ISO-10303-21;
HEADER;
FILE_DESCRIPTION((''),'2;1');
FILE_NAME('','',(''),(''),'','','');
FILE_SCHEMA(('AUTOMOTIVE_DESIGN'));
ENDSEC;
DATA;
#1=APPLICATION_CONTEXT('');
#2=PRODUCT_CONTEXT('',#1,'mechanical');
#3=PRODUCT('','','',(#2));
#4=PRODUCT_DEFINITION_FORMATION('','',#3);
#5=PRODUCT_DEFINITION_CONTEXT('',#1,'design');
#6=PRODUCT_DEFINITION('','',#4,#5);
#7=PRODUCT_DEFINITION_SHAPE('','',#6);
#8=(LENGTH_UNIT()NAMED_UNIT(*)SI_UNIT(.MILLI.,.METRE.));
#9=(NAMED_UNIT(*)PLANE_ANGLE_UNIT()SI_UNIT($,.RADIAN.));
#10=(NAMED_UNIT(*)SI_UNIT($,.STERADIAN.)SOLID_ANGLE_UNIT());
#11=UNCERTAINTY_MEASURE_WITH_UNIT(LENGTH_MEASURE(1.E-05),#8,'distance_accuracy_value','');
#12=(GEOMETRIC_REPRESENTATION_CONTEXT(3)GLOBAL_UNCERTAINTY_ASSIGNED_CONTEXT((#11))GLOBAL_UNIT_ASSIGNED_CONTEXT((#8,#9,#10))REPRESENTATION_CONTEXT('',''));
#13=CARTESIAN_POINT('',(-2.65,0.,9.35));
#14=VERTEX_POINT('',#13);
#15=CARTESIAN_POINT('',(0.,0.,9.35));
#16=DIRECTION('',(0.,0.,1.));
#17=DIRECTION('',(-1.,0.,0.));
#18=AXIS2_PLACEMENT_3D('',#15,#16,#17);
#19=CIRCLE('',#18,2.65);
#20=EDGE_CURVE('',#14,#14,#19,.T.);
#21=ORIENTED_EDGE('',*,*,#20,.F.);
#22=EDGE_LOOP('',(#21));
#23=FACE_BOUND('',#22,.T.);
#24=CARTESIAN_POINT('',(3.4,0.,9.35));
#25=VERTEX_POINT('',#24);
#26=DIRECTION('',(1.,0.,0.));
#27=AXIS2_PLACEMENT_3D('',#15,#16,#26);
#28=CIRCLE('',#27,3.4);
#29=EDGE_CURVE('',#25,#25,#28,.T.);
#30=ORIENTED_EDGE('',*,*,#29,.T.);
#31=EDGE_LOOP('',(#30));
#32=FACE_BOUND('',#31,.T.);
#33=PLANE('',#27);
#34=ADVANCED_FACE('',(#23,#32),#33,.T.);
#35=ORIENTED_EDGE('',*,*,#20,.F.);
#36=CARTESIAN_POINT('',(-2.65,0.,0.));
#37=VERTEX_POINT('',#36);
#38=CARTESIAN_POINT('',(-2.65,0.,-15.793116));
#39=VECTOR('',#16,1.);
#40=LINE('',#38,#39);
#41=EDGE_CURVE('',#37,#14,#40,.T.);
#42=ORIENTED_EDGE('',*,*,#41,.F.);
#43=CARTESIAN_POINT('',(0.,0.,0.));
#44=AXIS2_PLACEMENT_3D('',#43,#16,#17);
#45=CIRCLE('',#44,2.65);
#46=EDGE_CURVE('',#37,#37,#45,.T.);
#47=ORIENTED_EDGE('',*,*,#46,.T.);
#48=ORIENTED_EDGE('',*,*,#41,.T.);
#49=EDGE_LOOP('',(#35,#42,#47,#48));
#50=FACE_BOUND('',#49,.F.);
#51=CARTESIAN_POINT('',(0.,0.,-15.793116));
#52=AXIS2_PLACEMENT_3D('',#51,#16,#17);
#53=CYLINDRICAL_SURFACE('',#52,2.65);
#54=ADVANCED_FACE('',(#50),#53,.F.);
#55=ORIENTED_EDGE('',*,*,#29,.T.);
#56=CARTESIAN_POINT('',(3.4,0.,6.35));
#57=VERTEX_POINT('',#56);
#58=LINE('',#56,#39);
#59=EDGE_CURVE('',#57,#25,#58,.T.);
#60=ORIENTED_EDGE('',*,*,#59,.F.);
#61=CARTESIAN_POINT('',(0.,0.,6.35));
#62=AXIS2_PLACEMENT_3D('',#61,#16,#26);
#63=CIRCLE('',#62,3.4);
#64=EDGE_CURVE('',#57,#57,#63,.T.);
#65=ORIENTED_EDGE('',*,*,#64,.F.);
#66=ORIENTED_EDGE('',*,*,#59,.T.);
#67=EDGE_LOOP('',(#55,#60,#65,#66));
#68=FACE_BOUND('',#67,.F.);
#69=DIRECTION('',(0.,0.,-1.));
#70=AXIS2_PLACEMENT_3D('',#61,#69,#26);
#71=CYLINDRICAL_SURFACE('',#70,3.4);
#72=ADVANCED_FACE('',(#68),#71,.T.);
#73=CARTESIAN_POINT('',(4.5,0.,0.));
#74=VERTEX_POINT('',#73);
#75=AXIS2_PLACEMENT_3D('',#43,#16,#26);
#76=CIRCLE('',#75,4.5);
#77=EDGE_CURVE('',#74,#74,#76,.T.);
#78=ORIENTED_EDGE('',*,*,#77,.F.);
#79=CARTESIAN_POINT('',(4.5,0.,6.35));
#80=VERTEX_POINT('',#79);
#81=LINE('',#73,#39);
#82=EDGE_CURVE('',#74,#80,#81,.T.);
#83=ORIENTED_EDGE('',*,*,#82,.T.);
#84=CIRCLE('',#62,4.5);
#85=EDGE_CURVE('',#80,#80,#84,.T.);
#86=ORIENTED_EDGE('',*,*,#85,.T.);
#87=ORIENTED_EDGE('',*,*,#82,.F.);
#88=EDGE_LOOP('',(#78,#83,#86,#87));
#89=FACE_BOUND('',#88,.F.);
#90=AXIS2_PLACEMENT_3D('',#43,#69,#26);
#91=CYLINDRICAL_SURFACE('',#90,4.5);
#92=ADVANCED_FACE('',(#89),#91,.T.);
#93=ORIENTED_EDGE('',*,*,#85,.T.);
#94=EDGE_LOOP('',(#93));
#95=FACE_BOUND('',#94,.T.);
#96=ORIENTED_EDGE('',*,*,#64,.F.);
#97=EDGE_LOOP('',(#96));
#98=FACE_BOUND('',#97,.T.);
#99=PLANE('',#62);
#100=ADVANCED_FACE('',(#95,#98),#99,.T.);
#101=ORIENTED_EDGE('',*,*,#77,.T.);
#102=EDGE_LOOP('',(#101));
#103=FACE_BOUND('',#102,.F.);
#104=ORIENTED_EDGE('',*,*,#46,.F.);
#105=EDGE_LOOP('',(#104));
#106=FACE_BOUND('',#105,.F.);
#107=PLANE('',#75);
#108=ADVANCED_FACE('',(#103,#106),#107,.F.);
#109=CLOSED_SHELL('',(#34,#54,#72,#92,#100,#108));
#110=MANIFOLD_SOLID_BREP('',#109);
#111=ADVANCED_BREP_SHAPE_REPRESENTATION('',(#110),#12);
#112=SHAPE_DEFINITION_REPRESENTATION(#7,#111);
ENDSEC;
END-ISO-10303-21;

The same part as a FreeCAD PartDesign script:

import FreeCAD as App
import Part
import Sketcher

doc = App.newDocument("Part")
body = doc.addObject("PartDesign::Body", "Body")

# Sketch on XY plane
sketch1 = body.newObject("Sketcher::SketchObject", "Sketch")
sketch1.AttachmentSupport = (doc.getObject("XY_Plane"), [""])
sketch1.MapMode = "FlatFace"
sketch1.addGeometry(Part.Circle(App.Vector(0, 0, 0), App.Vector(0, 0, 1), 4.5), False)
sketch1.addConstraint([
    Sketcher.Constraint("Coincident", 0, 3, -1, 1),
    Sketcher.Constraint("Diameter", 0, 9.0),
])
pad1 = body.newObject("PartDesign::Pad", "Pad")
pad1.Profile = sketch1
pad1.Length = 6.35

# Sketch on XY plane
sketch2 = body.newObject("Sketcher::SketchObject", "Sketch001")
sketch2.AttachmentSupport = (doc.getObject("XY_Plane"), [""])
sketch2.MapMode = "FlatFace"
sketch2.AttachmentOffset = App.Placement(App.Vector(0, 0, 6.35), App.Rotation())
sketch2.addGeometry(Part.Circle(App.Vector(0, 0, 0), App.Vector(0, 0, 1), 3.4), False)
sketch2.addConstraint([
    Sketcher.Constraint("Coincident", 0, 3, -1, 1),
    Sketcher.Constraint("Diameter", 0, 6.8),
])
pad2 = body.newObject("PartDesign::Pad", "Pad001")
pad2.Profile = sketch2
pad2.Length = 3

# Sketch on XY plane
sketch3 = body.newObject("Sketcher::SketchObject", "Sketch002")
sketch3.AttachmentSupport = (doc.getObject("XY_Plane"), [""])
sketch3.MapMode = "FlatFace"
sketch3.addGeometry(Part.Circle(App.Vector(0, 0, 0), App.Vector(0, 0, 1), 2.6), False)
sketch3.addConstraint([
    Sketcher.Constraint("Coincident", 0, 3, -1, 1),
    Sketcher.Constraint("Diameter", 0, 5.3),
])
doc.recompute()
hole = body.newObject("PartDesign::Hole", "Hole")
hole.Profile = sketch3
hole.ThreadType = "None"
hole.Diameter = 5.3
hole.DepthType = "ThroughAll"
hole.Reversed = True

doc.recompute()
